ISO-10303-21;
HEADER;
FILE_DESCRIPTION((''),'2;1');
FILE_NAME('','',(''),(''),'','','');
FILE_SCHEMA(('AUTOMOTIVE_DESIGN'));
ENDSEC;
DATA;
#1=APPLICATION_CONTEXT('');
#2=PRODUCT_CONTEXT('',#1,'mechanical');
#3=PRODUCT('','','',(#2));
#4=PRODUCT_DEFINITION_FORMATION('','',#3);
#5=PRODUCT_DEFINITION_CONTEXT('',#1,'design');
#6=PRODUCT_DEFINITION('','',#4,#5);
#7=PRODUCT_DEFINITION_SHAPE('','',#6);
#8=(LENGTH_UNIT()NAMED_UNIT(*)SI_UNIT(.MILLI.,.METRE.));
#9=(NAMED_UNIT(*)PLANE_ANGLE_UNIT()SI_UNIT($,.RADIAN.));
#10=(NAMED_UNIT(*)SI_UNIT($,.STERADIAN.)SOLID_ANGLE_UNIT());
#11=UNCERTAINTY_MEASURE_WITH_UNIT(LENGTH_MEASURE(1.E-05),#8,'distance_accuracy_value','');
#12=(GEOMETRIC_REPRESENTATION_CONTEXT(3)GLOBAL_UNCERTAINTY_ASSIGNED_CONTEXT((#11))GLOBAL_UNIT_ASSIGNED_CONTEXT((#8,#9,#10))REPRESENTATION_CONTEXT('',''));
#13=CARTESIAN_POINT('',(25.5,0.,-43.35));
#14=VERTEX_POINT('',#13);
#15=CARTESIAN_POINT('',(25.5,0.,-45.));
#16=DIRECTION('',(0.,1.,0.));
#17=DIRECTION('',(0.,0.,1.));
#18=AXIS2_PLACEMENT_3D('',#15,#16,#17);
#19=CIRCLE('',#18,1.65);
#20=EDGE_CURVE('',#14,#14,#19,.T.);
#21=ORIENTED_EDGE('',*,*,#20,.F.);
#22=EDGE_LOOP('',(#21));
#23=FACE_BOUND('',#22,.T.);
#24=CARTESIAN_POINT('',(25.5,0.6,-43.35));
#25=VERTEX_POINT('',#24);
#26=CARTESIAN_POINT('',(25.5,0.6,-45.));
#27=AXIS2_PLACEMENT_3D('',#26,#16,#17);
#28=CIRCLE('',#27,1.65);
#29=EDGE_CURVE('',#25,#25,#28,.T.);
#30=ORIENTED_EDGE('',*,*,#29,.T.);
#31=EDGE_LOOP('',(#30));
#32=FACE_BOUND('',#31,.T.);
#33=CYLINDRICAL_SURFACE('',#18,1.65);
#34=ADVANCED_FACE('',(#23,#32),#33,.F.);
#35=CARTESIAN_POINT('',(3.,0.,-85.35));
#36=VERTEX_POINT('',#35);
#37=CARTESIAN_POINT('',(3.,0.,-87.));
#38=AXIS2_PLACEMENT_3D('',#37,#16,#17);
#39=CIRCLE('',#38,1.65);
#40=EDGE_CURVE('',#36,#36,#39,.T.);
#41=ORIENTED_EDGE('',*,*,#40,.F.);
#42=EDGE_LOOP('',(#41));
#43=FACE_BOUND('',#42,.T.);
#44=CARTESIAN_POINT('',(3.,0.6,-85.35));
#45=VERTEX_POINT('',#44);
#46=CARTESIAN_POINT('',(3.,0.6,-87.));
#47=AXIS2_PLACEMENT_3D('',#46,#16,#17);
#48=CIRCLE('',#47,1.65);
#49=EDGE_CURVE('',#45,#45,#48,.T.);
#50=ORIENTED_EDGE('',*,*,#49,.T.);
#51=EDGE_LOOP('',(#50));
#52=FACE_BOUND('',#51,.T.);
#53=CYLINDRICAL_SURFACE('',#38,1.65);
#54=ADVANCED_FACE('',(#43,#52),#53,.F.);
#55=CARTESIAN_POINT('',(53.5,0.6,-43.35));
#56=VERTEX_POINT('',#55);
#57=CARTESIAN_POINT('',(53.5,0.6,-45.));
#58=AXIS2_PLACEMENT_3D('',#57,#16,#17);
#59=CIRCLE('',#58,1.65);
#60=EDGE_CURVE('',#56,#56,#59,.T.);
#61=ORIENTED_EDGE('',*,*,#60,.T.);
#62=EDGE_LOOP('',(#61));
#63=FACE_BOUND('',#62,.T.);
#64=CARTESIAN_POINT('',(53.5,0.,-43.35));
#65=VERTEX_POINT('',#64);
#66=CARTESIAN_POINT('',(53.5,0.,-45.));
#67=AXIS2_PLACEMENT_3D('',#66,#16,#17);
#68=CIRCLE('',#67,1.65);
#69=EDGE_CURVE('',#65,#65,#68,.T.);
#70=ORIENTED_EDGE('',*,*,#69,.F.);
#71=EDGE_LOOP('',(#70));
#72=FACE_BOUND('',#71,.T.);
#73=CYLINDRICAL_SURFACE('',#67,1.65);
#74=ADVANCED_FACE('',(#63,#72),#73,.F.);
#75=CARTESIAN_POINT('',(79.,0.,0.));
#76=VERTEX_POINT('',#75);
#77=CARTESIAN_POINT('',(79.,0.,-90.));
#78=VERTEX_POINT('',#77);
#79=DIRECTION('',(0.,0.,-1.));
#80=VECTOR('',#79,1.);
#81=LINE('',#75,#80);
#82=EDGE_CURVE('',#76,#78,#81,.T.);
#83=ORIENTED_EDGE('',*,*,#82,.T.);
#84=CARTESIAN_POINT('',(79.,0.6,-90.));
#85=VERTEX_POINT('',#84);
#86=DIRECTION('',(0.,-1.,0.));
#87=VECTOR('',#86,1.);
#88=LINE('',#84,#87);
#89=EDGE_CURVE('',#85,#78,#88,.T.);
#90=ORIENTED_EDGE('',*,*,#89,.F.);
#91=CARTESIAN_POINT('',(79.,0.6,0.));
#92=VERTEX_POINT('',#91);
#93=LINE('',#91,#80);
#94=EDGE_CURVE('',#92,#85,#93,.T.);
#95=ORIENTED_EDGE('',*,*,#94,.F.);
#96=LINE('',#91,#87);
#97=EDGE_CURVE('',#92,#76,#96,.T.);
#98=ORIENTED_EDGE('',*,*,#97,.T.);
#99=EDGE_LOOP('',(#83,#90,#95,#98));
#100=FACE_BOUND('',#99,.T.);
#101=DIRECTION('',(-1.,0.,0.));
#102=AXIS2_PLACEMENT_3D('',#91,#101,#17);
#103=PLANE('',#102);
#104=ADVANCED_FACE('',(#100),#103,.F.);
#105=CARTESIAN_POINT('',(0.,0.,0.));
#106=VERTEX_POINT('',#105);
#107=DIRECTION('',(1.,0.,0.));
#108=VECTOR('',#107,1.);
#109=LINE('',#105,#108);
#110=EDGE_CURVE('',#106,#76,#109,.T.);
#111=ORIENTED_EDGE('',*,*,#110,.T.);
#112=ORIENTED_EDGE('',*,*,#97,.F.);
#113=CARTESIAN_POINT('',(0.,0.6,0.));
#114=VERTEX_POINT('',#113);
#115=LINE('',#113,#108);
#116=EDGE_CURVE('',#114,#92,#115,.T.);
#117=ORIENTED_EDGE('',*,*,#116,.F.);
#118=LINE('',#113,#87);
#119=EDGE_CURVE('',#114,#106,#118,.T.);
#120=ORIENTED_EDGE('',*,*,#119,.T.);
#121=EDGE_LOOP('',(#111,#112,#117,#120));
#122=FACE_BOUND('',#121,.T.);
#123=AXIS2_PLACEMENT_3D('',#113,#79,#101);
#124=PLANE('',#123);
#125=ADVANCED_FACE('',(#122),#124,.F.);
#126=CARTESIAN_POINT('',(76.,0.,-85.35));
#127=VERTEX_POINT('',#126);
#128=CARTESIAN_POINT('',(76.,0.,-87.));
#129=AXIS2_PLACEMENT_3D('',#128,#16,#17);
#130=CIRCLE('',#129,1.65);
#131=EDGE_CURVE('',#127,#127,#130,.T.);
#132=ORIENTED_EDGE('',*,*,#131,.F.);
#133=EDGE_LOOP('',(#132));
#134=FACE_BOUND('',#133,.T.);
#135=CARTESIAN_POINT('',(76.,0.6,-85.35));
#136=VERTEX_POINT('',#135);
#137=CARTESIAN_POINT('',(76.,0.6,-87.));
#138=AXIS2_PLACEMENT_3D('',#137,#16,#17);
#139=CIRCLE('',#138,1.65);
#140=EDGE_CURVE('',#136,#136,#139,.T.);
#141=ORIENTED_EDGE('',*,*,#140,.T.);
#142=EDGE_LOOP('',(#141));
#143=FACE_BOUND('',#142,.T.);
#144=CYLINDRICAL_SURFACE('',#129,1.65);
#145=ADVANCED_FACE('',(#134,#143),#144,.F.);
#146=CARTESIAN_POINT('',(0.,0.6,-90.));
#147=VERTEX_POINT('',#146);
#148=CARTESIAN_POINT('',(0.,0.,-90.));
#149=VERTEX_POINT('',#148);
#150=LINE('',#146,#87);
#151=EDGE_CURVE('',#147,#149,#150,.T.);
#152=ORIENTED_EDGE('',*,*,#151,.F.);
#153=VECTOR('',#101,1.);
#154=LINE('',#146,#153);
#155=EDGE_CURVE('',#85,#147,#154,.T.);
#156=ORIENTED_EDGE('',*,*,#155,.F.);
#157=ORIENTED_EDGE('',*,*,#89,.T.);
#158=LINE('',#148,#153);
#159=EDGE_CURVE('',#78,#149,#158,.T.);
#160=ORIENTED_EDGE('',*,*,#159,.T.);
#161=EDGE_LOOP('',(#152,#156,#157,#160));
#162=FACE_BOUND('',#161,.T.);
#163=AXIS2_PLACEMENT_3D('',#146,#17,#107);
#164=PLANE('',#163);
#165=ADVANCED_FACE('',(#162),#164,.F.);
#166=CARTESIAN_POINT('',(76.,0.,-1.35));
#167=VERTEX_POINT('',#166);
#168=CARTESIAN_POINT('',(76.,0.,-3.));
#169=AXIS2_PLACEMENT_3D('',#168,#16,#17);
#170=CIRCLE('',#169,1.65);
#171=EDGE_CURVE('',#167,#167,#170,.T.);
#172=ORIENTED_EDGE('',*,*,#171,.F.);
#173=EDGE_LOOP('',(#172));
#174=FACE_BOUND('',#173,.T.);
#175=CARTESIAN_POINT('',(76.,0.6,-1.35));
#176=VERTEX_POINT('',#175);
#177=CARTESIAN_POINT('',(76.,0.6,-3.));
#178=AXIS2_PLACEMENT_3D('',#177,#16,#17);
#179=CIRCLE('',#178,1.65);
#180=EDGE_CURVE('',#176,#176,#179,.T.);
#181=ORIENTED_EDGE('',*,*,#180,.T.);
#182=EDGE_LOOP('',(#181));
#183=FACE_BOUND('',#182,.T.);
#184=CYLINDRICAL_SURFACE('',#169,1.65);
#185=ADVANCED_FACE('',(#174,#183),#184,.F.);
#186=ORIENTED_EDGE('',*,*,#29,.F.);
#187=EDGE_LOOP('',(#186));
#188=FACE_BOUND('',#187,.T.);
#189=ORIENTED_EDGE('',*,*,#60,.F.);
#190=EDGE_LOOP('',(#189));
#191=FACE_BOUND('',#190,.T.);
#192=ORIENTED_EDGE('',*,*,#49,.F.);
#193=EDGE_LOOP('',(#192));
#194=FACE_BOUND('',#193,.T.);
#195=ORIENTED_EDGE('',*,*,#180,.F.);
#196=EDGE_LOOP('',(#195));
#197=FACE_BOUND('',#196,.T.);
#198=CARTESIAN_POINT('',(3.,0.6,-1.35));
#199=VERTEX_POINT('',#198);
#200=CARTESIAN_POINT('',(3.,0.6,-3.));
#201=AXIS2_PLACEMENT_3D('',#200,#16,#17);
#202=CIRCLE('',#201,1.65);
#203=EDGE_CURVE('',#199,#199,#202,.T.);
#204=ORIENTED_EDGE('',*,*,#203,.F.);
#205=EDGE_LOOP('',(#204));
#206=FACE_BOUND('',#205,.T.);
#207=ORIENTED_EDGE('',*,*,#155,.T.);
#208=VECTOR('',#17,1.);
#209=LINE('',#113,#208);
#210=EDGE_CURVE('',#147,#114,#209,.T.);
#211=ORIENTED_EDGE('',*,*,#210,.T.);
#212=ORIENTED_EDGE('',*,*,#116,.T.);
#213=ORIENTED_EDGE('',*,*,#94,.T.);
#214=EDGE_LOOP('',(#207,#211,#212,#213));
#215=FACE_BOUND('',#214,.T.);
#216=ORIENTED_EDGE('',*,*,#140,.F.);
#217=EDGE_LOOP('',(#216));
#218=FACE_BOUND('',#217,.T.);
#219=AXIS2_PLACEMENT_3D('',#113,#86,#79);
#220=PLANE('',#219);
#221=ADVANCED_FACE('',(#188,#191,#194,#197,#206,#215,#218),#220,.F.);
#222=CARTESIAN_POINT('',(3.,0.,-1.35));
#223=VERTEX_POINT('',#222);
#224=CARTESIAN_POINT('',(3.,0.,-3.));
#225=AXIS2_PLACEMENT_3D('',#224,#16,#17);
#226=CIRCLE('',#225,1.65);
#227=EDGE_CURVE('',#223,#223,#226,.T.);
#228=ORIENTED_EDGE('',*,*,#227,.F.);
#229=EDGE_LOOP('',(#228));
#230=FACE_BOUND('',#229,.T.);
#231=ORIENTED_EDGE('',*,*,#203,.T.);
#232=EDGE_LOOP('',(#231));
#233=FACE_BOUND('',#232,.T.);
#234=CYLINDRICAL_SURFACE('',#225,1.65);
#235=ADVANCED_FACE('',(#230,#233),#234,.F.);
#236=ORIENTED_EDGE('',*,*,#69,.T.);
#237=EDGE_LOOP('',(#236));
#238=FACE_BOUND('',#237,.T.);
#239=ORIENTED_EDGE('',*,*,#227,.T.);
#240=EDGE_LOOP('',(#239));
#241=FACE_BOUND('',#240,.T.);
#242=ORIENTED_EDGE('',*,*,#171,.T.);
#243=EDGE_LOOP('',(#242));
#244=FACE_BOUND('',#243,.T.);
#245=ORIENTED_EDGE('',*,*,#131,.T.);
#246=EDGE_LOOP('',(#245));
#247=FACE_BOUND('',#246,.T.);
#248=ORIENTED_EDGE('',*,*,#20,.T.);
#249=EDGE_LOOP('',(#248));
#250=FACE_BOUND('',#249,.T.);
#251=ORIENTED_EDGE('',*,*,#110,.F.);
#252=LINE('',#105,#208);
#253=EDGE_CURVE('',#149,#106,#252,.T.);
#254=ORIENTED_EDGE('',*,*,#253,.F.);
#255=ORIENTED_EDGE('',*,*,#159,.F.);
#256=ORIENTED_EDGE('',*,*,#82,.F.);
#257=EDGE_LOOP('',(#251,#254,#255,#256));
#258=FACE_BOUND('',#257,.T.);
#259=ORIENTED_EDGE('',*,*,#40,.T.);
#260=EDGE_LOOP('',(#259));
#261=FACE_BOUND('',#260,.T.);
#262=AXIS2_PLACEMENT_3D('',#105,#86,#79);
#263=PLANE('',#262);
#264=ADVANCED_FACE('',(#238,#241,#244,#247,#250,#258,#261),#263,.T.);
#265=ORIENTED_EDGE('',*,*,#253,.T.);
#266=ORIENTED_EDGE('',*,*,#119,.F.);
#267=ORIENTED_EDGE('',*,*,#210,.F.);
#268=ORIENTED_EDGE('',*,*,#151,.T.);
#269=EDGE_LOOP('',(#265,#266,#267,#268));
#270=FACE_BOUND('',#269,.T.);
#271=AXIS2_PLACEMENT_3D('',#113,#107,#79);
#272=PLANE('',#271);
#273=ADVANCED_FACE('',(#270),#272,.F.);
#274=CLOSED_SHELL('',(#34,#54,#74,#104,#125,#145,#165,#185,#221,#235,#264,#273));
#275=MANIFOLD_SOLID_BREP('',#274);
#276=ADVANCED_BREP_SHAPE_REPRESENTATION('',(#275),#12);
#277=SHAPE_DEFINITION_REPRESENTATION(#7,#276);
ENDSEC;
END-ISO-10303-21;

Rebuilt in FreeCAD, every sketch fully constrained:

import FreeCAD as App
import Part
import Sketcher


def add_polygon(sketch, points):
    """Adds a closed chain of lines whose ends are joined by coincident constraints."""
    first, n = sketch.GeometryCount, len(points)
    for a, b in zip(points, points[1:] + points[:1]):
        sketch.addGeometry(Part.LineSegment(App.Vector(*a, 0), App.Vector(*b, 0)), False)
    for i in range(n):
        sketch.addConstraint(Sketcher.Constraint("Coincident", first + i, 2, first + (i + 1) % n, 1))

doc = App.newDocument("Part")
body = doc.addObject("PartDesign::Body", "Body")

# Sketch on XZ plane
sketch1 = body.newObject("Sketcher::SketchObject", "Sketch")
sketch1.AttachmentSupport = (doc.getObject("XZ_Plane"), [""])
sketch1.MapMode = "FlatFace"
add_polygon(sketch1, [(0, -90), (0, 0), (79, 0), (79, -90)])  # lines 0-3
sketch1.addConstraint([
    Sketcher.Constraint("Vertical", 0),
    Sketcher.Constraint("Horizontal", 1),
    Sketcher.Constraint("Vertical", 2),
    Sketcher.Constraint("Horizontal", 3),
    Sketcher.Constraint("Coincident", 0, 2, -1, 1),
    Sketcher.Constraint("DistanceX", 1, 1, 1, 2, 79.0),
    Sketcher.Constraint("DistanceY", 0, 1, 0, 2, 90.0),
])
pad1 = body.newObject("PartDesign::Pad", "Pad")
pad1.Profile = sketch1
pad1.Length = 0.6
pad1.Reversed = True

# Sketch on XZ plane
sketch2 = body.newObject("Sketcher::SketchObject", "Sketch001")
sketch2.AttachmentSupport = (doc.getObject("XZ_Plane"), [""])
sketch2.MapMode = "FlatFace"
sketch2.AttachmentOffset = App.Placement(App.Vector(0, 0, -0.6), App.Rotation())
sketch2.addGeometry([
    Part.Circle(App.Vector(3, -87, 0), App.Vector(0, 0, 1), 1.65),  # 0
    Part.Circle(App.Vector(76, -87, 0), App.Vector(0, 0, 1), 1.65),  # 1
    Part.Circle(App.Vector(53.5, -45, 0), App.Vector(0, 0, 1), 1.65),  # 2
    Part.Circle(App.Vector(25.5, -45, 0), App.Vector(0, 0, 1), 1.65),  # 3
    Part.Circle(App.Vector(76, -3, 0), App.Vector(0, 0, 1), 1.65),  # 4
    Part.Circle(App.Vector(3, -3, 0), App.Vector(0, 0, 1), 1.65),  # 5
], False)
sketch2.addConstraint([
    Sketcher.Constraint("Equal", 0, 1),
    Sketcher.Constraint("Equal", 1, 2),
    Sketcher.Constraint("Equal", 2, 3),
    Sketcher.Constraint("Equal", 3, 4),
    Sketcher.Constraint("Equal", 4, 5),
    Sketcher.Constraint("Horizontal", 0, 3, 1, 3),
    Sketcher.Constraint("Horizontal", 2, 3, 3, 3),
    Sketcher.Constraint("Horizontal", 4, 3, 5, 3),
    Sketcher.Constraint("Vertical", 1, 3, 4, 3),
    Sketcher.Constraint("Vertical", 0, 3, 5, 3),
    Sketcher.Constraint("Diameter", 0, 3.3),
    Sketcher.Constraint("DistanceX", -1, 1, 0, 3, 3.0),
    Sketcher.Constraint("DistanceY", 0, 3, -1, 1, 87.0),
    Sketcher.Constraint("DistanceX", -1, 1, 1, 3, 76.0),
    Sketcher.Constraint("DistanceY", 2, 3, -1, 1, 45.0),
    Sketcher.Constraint("DistanceY", 4, 3, -1, 1, 3.0),
    Sketcher.Constraint("DistanceX", 3, 3, 2, 3, 28.0),
    Sketcher.Constraint("DistanceX", -1, 1, 2, 3, 53.5),
])
pocket1 = body.newObject("PartDesign::Pocket", "Pocket")
pocket1.Profile = sketch2
pocket1.Type = "ThroughAll"
pocket1.Reversed = True

doc.recompute()
